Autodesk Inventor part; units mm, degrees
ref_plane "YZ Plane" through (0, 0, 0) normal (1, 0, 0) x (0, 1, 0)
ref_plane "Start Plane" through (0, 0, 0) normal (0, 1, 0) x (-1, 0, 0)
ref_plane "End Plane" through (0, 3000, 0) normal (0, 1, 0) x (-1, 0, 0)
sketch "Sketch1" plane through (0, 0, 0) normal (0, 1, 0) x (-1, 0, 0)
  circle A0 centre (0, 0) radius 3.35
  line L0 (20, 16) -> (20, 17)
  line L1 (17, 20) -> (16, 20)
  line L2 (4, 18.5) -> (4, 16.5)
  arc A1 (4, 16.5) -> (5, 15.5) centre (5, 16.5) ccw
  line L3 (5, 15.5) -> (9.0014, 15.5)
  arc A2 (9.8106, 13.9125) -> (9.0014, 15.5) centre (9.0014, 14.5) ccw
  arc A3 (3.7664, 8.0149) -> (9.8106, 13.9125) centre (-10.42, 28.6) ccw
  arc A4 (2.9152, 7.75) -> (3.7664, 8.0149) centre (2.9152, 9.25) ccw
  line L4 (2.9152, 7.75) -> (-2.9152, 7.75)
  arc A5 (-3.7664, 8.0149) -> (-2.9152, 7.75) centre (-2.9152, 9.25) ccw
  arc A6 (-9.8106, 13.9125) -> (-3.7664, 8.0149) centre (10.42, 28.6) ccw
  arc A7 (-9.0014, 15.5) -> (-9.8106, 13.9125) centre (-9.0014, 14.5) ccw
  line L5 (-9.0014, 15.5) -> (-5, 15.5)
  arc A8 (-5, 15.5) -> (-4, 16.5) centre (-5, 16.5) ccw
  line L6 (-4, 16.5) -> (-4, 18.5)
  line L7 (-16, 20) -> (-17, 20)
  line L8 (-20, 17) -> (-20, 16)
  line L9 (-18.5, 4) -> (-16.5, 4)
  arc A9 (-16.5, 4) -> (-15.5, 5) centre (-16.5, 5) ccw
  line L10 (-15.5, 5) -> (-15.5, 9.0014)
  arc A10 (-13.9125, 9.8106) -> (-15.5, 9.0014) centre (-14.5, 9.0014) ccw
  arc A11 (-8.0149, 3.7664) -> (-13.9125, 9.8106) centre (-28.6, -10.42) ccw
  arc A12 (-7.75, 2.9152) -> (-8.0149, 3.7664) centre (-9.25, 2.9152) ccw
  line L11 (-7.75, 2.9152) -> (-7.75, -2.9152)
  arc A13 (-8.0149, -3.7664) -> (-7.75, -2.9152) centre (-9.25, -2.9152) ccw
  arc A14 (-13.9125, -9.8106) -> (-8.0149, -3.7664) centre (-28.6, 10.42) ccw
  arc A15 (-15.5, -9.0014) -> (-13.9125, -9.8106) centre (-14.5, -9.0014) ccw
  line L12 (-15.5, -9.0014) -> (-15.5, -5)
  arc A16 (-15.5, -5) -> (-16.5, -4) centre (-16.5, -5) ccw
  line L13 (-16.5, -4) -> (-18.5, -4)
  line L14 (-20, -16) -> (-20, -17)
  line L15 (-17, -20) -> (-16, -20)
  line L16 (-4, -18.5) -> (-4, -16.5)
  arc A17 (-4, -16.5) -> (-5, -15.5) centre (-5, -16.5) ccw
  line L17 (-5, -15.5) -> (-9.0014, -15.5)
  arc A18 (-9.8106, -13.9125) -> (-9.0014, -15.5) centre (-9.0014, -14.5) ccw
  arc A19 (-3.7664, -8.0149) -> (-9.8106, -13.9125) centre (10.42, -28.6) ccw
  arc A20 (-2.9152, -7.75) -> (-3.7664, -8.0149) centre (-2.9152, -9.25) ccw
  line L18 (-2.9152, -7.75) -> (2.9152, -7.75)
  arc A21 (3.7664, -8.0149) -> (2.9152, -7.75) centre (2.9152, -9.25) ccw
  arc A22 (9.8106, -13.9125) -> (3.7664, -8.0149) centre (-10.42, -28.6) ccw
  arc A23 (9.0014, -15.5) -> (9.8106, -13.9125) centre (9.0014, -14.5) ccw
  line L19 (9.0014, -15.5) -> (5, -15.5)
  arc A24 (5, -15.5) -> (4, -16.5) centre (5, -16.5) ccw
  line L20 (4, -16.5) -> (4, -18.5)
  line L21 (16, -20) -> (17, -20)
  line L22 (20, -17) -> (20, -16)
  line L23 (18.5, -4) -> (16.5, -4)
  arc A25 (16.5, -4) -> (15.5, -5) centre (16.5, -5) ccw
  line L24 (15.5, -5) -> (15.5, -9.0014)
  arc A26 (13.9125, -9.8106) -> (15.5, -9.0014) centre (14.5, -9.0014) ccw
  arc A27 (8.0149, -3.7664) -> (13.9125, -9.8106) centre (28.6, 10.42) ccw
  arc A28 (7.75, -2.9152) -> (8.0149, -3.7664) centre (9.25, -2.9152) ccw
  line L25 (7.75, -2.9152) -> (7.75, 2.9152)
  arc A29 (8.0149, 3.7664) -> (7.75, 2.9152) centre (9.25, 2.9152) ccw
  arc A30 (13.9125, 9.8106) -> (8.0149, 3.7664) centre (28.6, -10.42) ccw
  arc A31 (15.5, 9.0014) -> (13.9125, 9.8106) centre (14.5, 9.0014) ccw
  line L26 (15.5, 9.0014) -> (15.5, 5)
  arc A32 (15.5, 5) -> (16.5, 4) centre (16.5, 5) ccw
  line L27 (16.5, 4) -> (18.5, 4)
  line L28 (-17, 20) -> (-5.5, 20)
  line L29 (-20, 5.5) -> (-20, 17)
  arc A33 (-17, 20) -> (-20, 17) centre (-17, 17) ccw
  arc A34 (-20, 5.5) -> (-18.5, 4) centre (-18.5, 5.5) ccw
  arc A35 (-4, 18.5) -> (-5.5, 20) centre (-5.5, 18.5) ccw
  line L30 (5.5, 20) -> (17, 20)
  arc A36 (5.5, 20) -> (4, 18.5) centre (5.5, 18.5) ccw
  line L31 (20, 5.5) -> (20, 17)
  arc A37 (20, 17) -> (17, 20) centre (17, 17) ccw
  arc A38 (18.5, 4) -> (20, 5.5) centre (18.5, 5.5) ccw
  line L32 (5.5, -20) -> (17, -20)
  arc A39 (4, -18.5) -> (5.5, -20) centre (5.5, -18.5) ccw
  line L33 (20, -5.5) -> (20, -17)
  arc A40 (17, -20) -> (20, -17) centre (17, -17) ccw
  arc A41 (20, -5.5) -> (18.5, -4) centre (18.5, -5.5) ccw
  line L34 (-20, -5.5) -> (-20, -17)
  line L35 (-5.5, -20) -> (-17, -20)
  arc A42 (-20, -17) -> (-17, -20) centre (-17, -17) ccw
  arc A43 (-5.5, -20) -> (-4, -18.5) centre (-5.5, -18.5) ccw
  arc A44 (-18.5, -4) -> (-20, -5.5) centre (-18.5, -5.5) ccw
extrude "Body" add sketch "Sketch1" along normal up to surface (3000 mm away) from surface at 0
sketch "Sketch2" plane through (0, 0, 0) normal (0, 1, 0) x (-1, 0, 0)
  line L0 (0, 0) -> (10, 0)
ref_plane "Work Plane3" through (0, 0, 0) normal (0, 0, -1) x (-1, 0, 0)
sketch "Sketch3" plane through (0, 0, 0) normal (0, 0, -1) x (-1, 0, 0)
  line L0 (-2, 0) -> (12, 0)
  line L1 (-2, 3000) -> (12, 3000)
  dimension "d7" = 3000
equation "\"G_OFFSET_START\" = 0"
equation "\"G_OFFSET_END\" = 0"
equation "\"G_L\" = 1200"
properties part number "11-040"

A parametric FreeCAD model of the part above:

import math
import FreeCAD as App
import Part
import Sketcher

V = App.Vector

doc = App.newDocument("Part")
params = doc.addObject("Spreadsheet::Sheet", "Params")
for row, (alias, value) in enumerate([
    ("sketch1_radius", "3 mm"),
    ("sketch1_radius2", "1 mm"),
    ("sketch1_radius3", "25 mm"),
    ("sketch1_diameter", "6.7 mm"),
    ("sketch1_radius4", "1.5 mm"),
    ("pad1_length", "3000 mm"),
], start=1):
    params.set(f"A{row}", alias)
    params.set(f"B{row}", "=" + value)
    params.setAlias(f"B{row}", alias)

body = doc.addObject("PartDesign::Body", "Body")

# Sketch on XZ plane
sketch1 = body.newObject("Sketcher::SketchObject", "Sketch")
sketch1.AttachmentSupport = (doc.getObject("XZ_Plane"), [""])
sketch1.MapMode = "FlatFace"
sketch1.addGeometry(Part.LineSegment(V(-20, 5.5, 0), V(-20, 17, 0)), False)
sketch1.addGeometry(Part.ArcOfCircle(Part.Circle(V(-17, 17, 0), V(0, 0, 1), 3), math.radians(90), math.radians(180)), False)
sketch1.addGeometry(Part.LineSegment(V(-17, 20, 0), V(-5.5, 20, 0)), False)
sketch1.addGeometry(Part.ArcOfCircle(Part.Circle(V(-5.5, 18.5, 0), V(0, 0, 1), 1.5), math.radians(0), math.radians(90)), False)
sketch1.addGeometry(Part.LineSegment(V(-4, 18.5, 0), V(-4, 16.5, 0)), False)
sketch1.addGeometry(Part.ArcOfCircle(Part.Circle(V(-5, 16.5, 0), V(0, 0, 1), 1), math.radians(-90), math.radians(0)), False)
sketch1.addGeometry(Part.LineSegment(V(-5, 15.5, 0), V(-9, 15.5, 0)), False)
sketch1.addGeometry(Part.ArcOfCircle(Part.Circle(V(-9, 14.5, 0), V(0, 0, 1), 1), math.radians(90), math.radians(216)), False)
sketch1.addGeometry(Part.ArcOfCircle(Part.Circle(V(10.4, 28.6, 0), V(0, 0, 1), 25), math.radians(-144.02), math.radians(-124.57)), False)
sketch1.addGeometry(Part.ArcOfCircle(Part.Circle(V(-2.9, 9.2, 0), V(0, 0, 1), 1.5), math.radians(-125), math.radians(-90)), False)
sketch1.addGeometry(Part.LineSegment(V(-2.9, 7.8, 0), V(2.9, 7.8, 0)), False)
sketch1.addGeometry(Part.ArcOfCircle(Part.Circle(V(2.9, 9.2, 0), V(0, 0, 1), 1.5), math.radians(-90), math.radians(-55)), False)
sketch1.addGeometry(Part.ArcOfCircle(Part.Circle(V(-10.4, 28.6, 0), V(0, 0, 1), 25), math.radians(-55.43), math.radians(-35.98)), False)
sketch1.addGeometry(Part.ArcOfCircle(Part.Circle(V(9, 14.5, 0), V(0, 0, 1), 1), math.radians(-36), math.radians(90)), False)
sketch1.addGeometry(Part.LineSegment(V(9, 15.5, 0), V(5, 15.5, 0)), False)
sketch1.addGeometry(Part.ArcOfCircle(Part.Circle(V(5, 16.5, 0), V(0, 0, 1), 1), math.radians(180), math.radians(270)), False)
sketch1.addGeometry(Part.LineSegment(V(4, 16.5, 0), V(4, 18.5, 0)), False)
sketch1.addGeometry(Part.ArcOfCircle(Part.Circle(V(5.5, 18.5, 0), V(0, 0, 1), 1.5), math.radians(90), math.radians(180)), False)
sketch1.addGeometry(Part.LineSegment(V(5.5, 20, 0), V(17, 20, 0)), False)
sketch1.addGeometry(Part.ArcOfCircle(Part.Circle(V(17, 17, 0), V(0, 0, 1), 3), math.radians(0), math.radians(90)), False)
sketch1.addGeometry(Part.LineSegment(V(20, 17, 0), V(20, 5.5, 0)), False)
sketch1.addGeometry(Part.ArcOfCircle(Part.Circle(V(18.5, 5.5, 0), V(0, 0, 1), 1.5), math.radians(-90), math.radians(0)), False)
sketch1.addGeometry(Part.LineSegment(V(18.5, 4, 0), V(16.5, 4, 0)), False)
sketch1.addGeometry(Part.ArcOfCircle(Part.Circle(V(16.5, 5, 0), V(0, 0, 1), 1), math.radians(180), math.radians(270)), False)
sketch1.addGeometry(Part.LineSegment(V(15.5, 5, 0), V(15.5, 9, 0)), False)
sketch1.addGeometry(Part.ArcOfCircle(Part.Circle(V(14.5, 9, 0), V(0, 0, 1), 1), math.radians(0), math.radians(126)), False)
sketch1.addGeometry(Part.ArcOfCircle(Part.Circle(V(28.6, -10.4, 0), V(0, 0, 1), 25), math.radians(125.98), math.radians(145.43)), False)
sketch1.addGeometry(Part.ArcOfCircle(Part.Circle(V(9.2, 2.9, 0), V(0, 0, 1), 1.5), math.radians(145), math.radians(180)), False)
sketch1.addGeometry(Part.LineSegment(V(7.8, 2.9, 0), V(7.8, -2.9, 0)), False)
sketch1.addGeometry(Part.ArcOfCircle(Part.Circle(V(9.2, -2.9, 0), V(0, 0, 1), 1.5), math.radians(180), math.radians(215)), False)
sketch1.addGeometry(Part.ArcOfCircle(Part.Circle(V(28.6, 10.4, 0), V(0, 0, 1), 25), math.radians(-145.43), math.radians(-125.98)), False)
sketch1.addGeometry(Part.ArcOfCircle(Part.Circle(V(14.5, -9, 0), V(0, 0, 1), 1), math.radians(-126), math.radians(0)), False)
sketch1.addGeometry(Part.LineSegment(V(15.5, -9, 0), V(15.5, -5, 0)), False)
sketch1.addGeometry(Part.ArcOfCircle(Part.Circle(V(16.5, -5, 0), V(0, 0, 1), 1), math.radians(90), math.radians(180)), False)
sketch1.addGeometry(Part.LineSegment(V(16.5, -4, 0), V(18.5, -4, 0)), False)
sketch1.addGeometry(Part.ArcOfCircle(Part.Circle(V(18.5, -5.5, 0), V(0, 0, 1), 1.5), math.radians(0), math.radians(90)), False)
sketch1.addGeometry(Part.LineSegment(V(20, -5.5, 0), V(20, -17, 0)), False)
sketch1.addGeometry(Part.ArcOfCircle(Part.Circle(V(17, -17, 0), V(0, 0, 1), 3), math.radians(-90), math.radians(0)), False)
sketch1.addGeometry(Part.LineSegment(V(17, -20, 0), V(5.5, -20, 0)), False)
sketch1.addGeometry(Part.ArcOfCircle(Part.Circle(V(5.5, -18.5, 0), V(0, 0, 1), 1.5), math.radians(180), math.radians(270)), False)
sketch1.addGeometry(Part.LineSegment(V(4, -18.5, 0), V(4, -16.5, 0)), False)
sketch1.addGeometry(Part.ArcOfCircle(Part.Circle(V(5, -16.5, 0), V(0, 0, 1), 1), math.radians(90), math.radians(180)), False)
sketch1.addGeometry(Part.LineSegment(V(5, -15.5, 0), V(9, -15.5, 0)), False)
sketch1.addGeometry(Part.ArcOfCircle(Part.Circle(V(9, -14.5, 0), V(0, 0, 1), 1), math.radians(-90), math.radians(36)), False)
sketch1.addGeometry(Part.ArcOfCircle(Part.Circle(V(-10.4, -28.6, 0), V(0, 0, 1), 25), math.radians(35.98), math.radians(55.43)), False)
sketch1.addGeometry(Part.ArcOfCircle(Part.Circle(V(2.9, -9.2, 0), V(0, 0, 1), 1.5), math.radians(55), math.radians(90)), False)
sketch1.addGeometry(Part.LineSegment(V(2.9, -7.8, 0), V(-2.9, -7.8, 0)), False)
sketch1.addGeometry(Part.ArcOfCircle(Part.Circle(V(-2.9, -9.2, 0), V(0, 0, 1), 1.5), math.radians(90), math.radians(125)), False)
sketch1.addGeometry(Part.ArcOfCircle(Part.Circle(V(10.4, -28.6, 0), V(0, 0, 1), 25), math.radians(124.57), math.radians(144.02)), False)
sketch1.addGeometry(Part.ArcOfCircle(Part.Circle(V(-9, -14.5, 0), V(0, 0, 1), 1), math.radians(144), math.radians(270)), False)
sketch1.addGeometry(Part.LineSegment(V(-9, -15.5, 0), V(-5, -15.5, 0)), False)
sketch1.addGeometry(Part.ArcOfCircle(Part.Circle(V(-5, -16.5, 0), V(0, 0, 1), 1), math.radians(0), math.radians(90)), False)
sketch1.addGeometry(Part.LineSegment(V(-4, -16.5, 0), V(-4, -18.5, 0)), False)
sketch1.addGeometry(Part.ArcOfCircle(Part.Circle(V(-5.5, -18.5, 0), V(0, 0, 1), 1.5), math.radians(-90), math.radians(0)), False)
sketch1.addGeometry(Part.LineSegment(V(-5.5, -20, 0), V(-17, -20, 0)), False)
sketch1.addGeometry(Part.ArcOfCircle(Part.Circle(V(-17, -17, 0), V(0, 0, 1), 3), math.radians(180), math.radians(270)), False)
sketch1.addGeometry(Part.LineSegment(V(-20, -17, 0), V(-20, -5.5, 0)), False)
sketch1.addGeometry(Part.ArcOfCircle(Part.Circle(V(-18.5, -5.5, 0), V(0, 0, 1), 1.5), math.radians(90), math.radians(180)), False)
sketch1.addGeometry(Part.LineSegment(V(-18.5, -4, 0), V(-16.5, -4, 0)), False)
sketch1.addGeometry(Part.ArcOfCircle(Part.Circle(V(-16.5, -5, 0), V(0, 0, 1), 1), math.radians(0), math.radians(90)), False)
sketch1.addGeometry(Part.LineSegment(V(-15.5, -5, 0), V(-15.5, -9, 0)), False)
sketch1.addGeometry(Part.ArcOfCircle(Part.Circle(V(-14.5, -9, 0), V(0, 0, 1), 1), math.radians(180), math.radians(306)), False)
sketch1.addGeometry(Part.ArcOfCircle(Part.Circle(V(-28.6, 10.4, 0), V(0, 0, 1), 25), math.radians(-54.02), math.radians(-34.57)), False)
sketch1.addGeometry(Part.ArcOfCircle(Part.Circle(V(-9.2, -2.9, 0), V(0, 0, 1), 1.5), math.radians(-35), math.radians(0)), False)
sketch1.addGeometry(Part.LineSegment(V(-7.8, -2.9, 0), V(-7.8, 2.9, 0)), False)
sketch1.addGeometry(Part.ArcOfCircle(Part.Circle(V(-9.2, 2.9, 0), V(0, 0, 1), 1.5), math.radians(0), math.radians(35)), False)
sketch1.addGeometry(Part.ArcOfCircle(Part.Circle(V(-28.6, -10.4, 0), V(0, 0, 1), 25), math.radians(34.57), math.radians(54.02)), False)
sketch1.addGeometry(Part.ArcOfCircle(Part.Circle(V(-14.5, 9, 0), V(0, 0, 1), 1), math.radians(54), math.radians(180)), False)
sketch1.addGeometry(Part.LineSegment(V(-15.5, 9, 0), V(-15.5, 5, 0)), False)
sketch1.addGeometry(Part.ArcOfCircle(Part.Circle(V(-16.5, 5, 0), V(0, 0, 1), 1), math.radians(-90), math.radians(0)), False)
sketch1.addGeometry(Part.LineSegment(V(-16.5, 4, 0), V(-18.5, 4, 0)), False)
sketch1.addGeometry(Part.ArcOfCircle(Part.Circle(V(-18.5, 5.5, 0), V(0, 0, 1), 1.5), math.radians(180), math.radians(270)), False)
sketch1.addGeometry(Part.Circle(V(0, 0, 0), V(0, 0, 1), 3.4), False)
sketch1.addConstraint(Sketcher.Constraint("Tangent", 0, 2, 1, 2))
sketch1.addConstraint(Sketcher.Constraint("Tangent", 1, 1, 2, 1))
sketch1.addConstraint(Sketcher.Constraint("Tangent", 2, 2, 3, 2))
sketch1.addConstraint(Sketcher.Constraint("Tangent", 3, 1, 4, 1))
sketch1.addConstraint(Sketcher.Constraint("Tangent", 4, 2, 5, 2))
sketch1.addConstraint(Sketcher.Constraint("Tangent", 5, 1, 6, 1))
sketch1.addConstraint(Sketcher.Constraint("Tangent", 6, 2, 7, 1))
sketch1.addConstraint(Sketcher.Constraint("Tangent", 7, 2, 8, 1))
sketch1.addConstraint(Sketcher.Constraint("Tangent", 8, 2, 9, 1))
sketch1.addConstraint(Sketcher.Constraint("Tangent", 9, 2, 10, 1))
sketch1.addConstraint(Sketcher.Constraint("Tangent", 10, 2, 11, 1))
sketch1.addConstraint(Sketcher.Constraint("Tangent", 11, 2, 12, 1))
sketch1.addConstraint(Sketcher.Constraint("Tangent", 12, 2, 13, 1))
sketch1.addConstraint(Sketcher.Constraint("Tangent", 13, 2, 14, 1))
sketch1.addConstraint(Sketcher.Constraint("Tangent", 14, 2, 15, 2))
sketch1.addConstraint(Sketcher.Constraint("Tangent", 15, 1, 16, 1))
sketch1.addConstraint(Sketcher.Constraint("Tangent", 16, 2, 17, 2))
sketch1.addConstraint(Sketcher.Constraint("Tangent", 17, 1, 18, 1))
sketch1.addConstraint(Sketcher.Constraint("Tangent", 18, 2, 19, 2))
sketch1.addConstraint(Sketcher.Constraint("Tangent", 19, 1, 20, 1))
sketch1.addConstraint(Sketcher.Constraint("Tangent", 20, 2, 21, 2))
sketch1.addConstraint(Sketcher.Constraint("Tangent", 21, 1, 22, 1))
sketch1.addConstraint(Sketcher.Constraint("Tangent", 22, 2, 23, 2))
sketch1.addConstraint(Sketcher.Constraint("Tangent", 23, 1, 24, 1))
sketch1.addConstraint(Sketcher.Constraint("Tangent", 24, 2, 25, 1))
sketch1.addConstraint(Sketcher.Constraint("Tangent", 25, 2, 26, 1))
sketch1.addConstraint(Sketcher.Constraint("Tangent", 26, 2, 27, 1))
sketch1.addConstraint(Sketcher.Constraint("Tangent", 27, 2, 28, 1))
sketch1.addConstraint(Sketcher.Constraint("Tangent", 28, 2, 29, 1))
sketch1.addConstraint(Sketcher.Constraint("Tangent", 29, 2, 30, 1))
sketch1.addConstraint(Sketcher.Constraint("Tangent", 30, 2, 31, 1))
sketch1.addConstraint(Sketcher.Constraint("Tangent", 31, 2, 32, 1))
sketch1.addConstraint(Sketcher.Constraint("Tangent", 32, 2, 33, 2))
sketch1.addConstraint(Sketcher.Constraint("Tangent", 33, 1, 34, 1))
sketch1.addConstraint(Sketcher.Constraint("Tangent", 34, 2, 35, 2))
sketch1.addConstraint(Sketcher.Constraint("Tangent", 35, 1, 36, 1))
sketch1.addConstraint(Sketcher.Constraint("Tangent", 36, 2, 37, 2))
sketch1.addConstraint(Sketcher.Constraint("Tangent", 37, 1, 38, 1))
sketch1.addConstraint(Sketcher.Constraint("Tangent", 38, 2, 39, 2))
sketch1.addConstraint(Sketcher.Constraint("Tangent", 39, 1, 40, 1))
sketch1.addConstraint(Sketcher.Constraint("Tangent", 40, 2, 41, 2))
sketch1.addConstraint(Sketcher.Constraint("Tangent", 41, 1, 42, 1))
sketch1.addConstraint(Sketcher.Constraint("Tangent", 42, 2, 43, 1))
sketch1.addConstraint(Sketcher.Constraint("Tangent", 43, 2, 44, 1))
sketch1.addConstraint(Sketcher.Constraint("Tangent", 44, 2, 45, 1))
sketch1.addConstraint(Sketcher.Constraint("Tangent", 45, 2, 46, 1))
sketch1.addConstraint(Sketcher.Constraint("Tangent", 46, 2, 47, 1))
sketch1.addConstraint(Sketcher.Constraint("Tangent", 47, 2, 48, 1))
sketch1.addConstraint(Sketcher.Constraint("Tangent", 48, 2, 49, 1))
sketch1.addConstraint(Sketcher.Constraint("Tangent", 49, 2, 50, 1))
sketch1.addConstraint(Sketcher.Constraint("Tangent", 50, 2, 51, 2))
sketch1.addConstraint(Sketcher.Constraint("Tangent", 51, 1, 52, 1))
sketch1.addConstraint(Sketcher.Constraint("Tangent", 52, 2, 53, 2))
sketch1.addConstraint(Sketcher.Constraint("Tangent", 53, 1, 54, 1))
sketch1.addConstraint(Sketcher.Constraint("Tangent", 54, 2, 55, 2))
sketch1.addConstraint(Sketcher.Constraint("Tangent", 55, 1, 56, 1))
sketch1.addConstraint(Sketcher.Constraint("Tangent", 56, 2, 57, 2))
sketch1.addConstraint(Sketcher.Constraint("Tangent", 57, 1, 58, 1))
sketch1.addConstraint(Sketcher.Constraint("Tangent", 58, 2, 59, 2))
sketch1.addConstraint(Sketcher.Constraint("Tangent", 59, 1, 60, 1))
sketch1.addConstraint(Sketcher.Constraint("Tangent", 60, 2, 61, 1))
sketch1.addConstraint(Sketcher.Constraint("Tangent", 61, 2, 62, 1))
sketch1.addConstraint(Sketcher.Constraint("Tangent", 62, 2, 63, 1))
sketch1.addConstraint(Sketcher.Constraint("Tangent", 63, 2, 64, 1))
sketch1.addConstraint(Sketcher.Constraint("Tangent", 64, 2, 65, 1))
sketch1.addConstraint(Sketcher.Constraint("Tangent", 65, 2, 66, 1))
sketch1.addConstraint(Sketcher.Constraint("Tangent", 66, 2, 67, 1))
sketch1.addConstraint(Sketcher.Constraint("Tangent", 67, 2, 68, 1))
sketch1.addConstraint(Sketcher.Constraint("Tangent", 68, 2, 69, 2))
sketch1.addConstraint(Sketcher.Constraint("Tangent", 69, 1, 70, 1))
sketch1.addConstraint(Sketcher.Constraint("Tangent", 70, 2, 71, 2))
sketch1.addConstraint(Sketcher.Constraint("Tangent", 71, 1, 0, 1))
sketch1.addConstraint(Sketcher.Constraint("Vertical", 0))
sketch1.addConstraint(Sketcher.Constraint("Horizontal", 2))
sketch1.addConstraint(Sketcher.Constraint("Vertical", 4))
sketch1.addConstraint(Sketcher.Constraint("Horizontal", 6))
sketch1.addConstraint(Sketcher.Constraint("Horizontal", 10))
sketch1.addConstraint(Sketcher.Constraint("Horizontal", 14))
sketch1.addConstraint(Sketcher.Constraint("Vertical", 16))
sketch1.addConstraint(Sketcher.Constraint("Horizontal", 18))
sketch1.addConstraint(Sketcher.Constraint("Vertical", 20))
sketch1.addConstraint(Sketcher.Constraint("Horizontal", 22))
sketch1.addConstraint(Sketcher.Constraint("Vertical", 24))
sketch1.addConstraint(Sketcher.Constraint("Vertical", 28))
sketch1.addConstraint(Sketcher.Constraint("Vertical", 32))
sketch1.addConstraint(Sketcher.Constraint("Horizontal", 34))
sketch1.addConstraint(Sketcher.Constraint("Vertical", 36))
sketch1.addConstraint(Sketcher.Constraint("Horizontal", 38))
sketch1.addConstraint(Sketcher.Constraint("Vertical", 40))
sketch1.addConstraint(Sketcher.Constraint("Horizontal", 42))
sketch1.addConstraint(Sketcher.Constraint("Horizontal", 46))
sketch1.addConstraint(Sketcher.Constraint("Horizontal", 50))
sketch1.addConstraint(Sketcher.Constraint("Vertical", 52))
sketch1.addConstraint(Sketcher.Constraint("Horizontal", 54))
sketch1.addConstraint(Sketcher.Constraint("Vertical", 56))
sketch1.addConstraint(Sketcher.Constraint("Horizontal", 58))
sketch1.addConstraint(Sketcher.Constraint("Vertical", 60))
sketch1.addConstraint(Sketcher.Constraint("Vertical", 64))
sketch1.addConstraint(Sketcher.Constraint("Vertical", 68))
sketch1.addConstraint(Sketcher.Constraint("Horizontal", 70))
sketch1.addConstraint(Sketcher.Constraint("Coincident", 72, 3, -1, 1))
sketch1.addConstraint(Sketcher.Constraint("Equal", 5, 7))
sketch1.addConstraint(Sketcher.Constraint("Equal", 3, 9))
sketch1.addConstraint(Sketcher.Constraint("Equal", 9, 11))
sketch1.addConstraint(Sketcher.Constraint("Equal", 8, 12))
sketch1.addConstraint(Sketcher.Constraint("Equal", 7, 13))
sketch1.addConstraint(Sketcher.Constraint("Equal", 13, 15))
sketch1.addConstraint(Sketcher.Constraint("Equal", 11, 17))
sketch1.addConstraint(Sketcher.Constraint("Equal", 1, 19))
sketch1.addConstraint(Sketcher.Constraint("Equal", 17, 21))
sketch1.addConstraint(Sketcher.Constraint("Equal", 15, 23))
sketch1.addConstraint(Sketcher.Constraint("Equal", 23, 25))
sketch1.addConstraint(Sketcher.Constraint("Equal", 12, 26))
sketch1.addConstraint(Sketcher.Constraint("Equal", 21, 27))
sketch1.addConstraint(Sketcher.Constraint("Equal", 27, 29))
sketch1.addConstraint(Sketcher.Constraint("Equal", 26, 30))
sketch1.addConstraint(Sketcher.Constraint("Equal", 25, 31))
sketch1.addConstraint(Sketcher.Constraint("Equal", 31, 33))
sketch1.addConstraint(Sketcher.Constraint("Equal", 29, 35))
sketch1.addConstraint(Sketcher.Constraint("Equal", 19, 37))
sketch1.addConstraint(Sketcher.Constraint("Equal", 35, 39))
sketch1.addConstraint(Sketcher.Constraint("Equal", 33, 41))
sketch1.addConstraint(Sketcher.Constraint("Equal", 41, 43))
sketch1.addConstraint(Sketcher.Constraint("Equal", 30, 44))
sketch1.addConstraint(Sketcher.Constraint("Equal", 39, 45))
sketch1.addConstraint(Sketcher.Constraint("Equal", 45, 47))
sketch1.addConstraint(Sketcher.Constraint("Equal", 44, 48))
sketch1.addConstraint(Sketcher.Constraint("Equal", 43, 49))
sketch1.addConstraint(Sketcher.Constraint("Equal", 49, 51))
sketch1.addConstraint(Sketcher.Constraint("Equal", 47, 53))
sketch1.addConstraint(Sketcher.Constraint("Equal", 37, 55))
sketch1.addConstraint(Sketcher.Constraint("Equal", 53, 57))
sketch1.addConstraint(Sketcher.Constraint("Equal", 51, 59))
sketch1.addConstraint(Sketcher.Constraint("Equal", 59, 61))
sketch1.addConstraint(Sketcher.Constraint("Equal", 48, 62))
sketch1.addConstraint(Sketcher.Constraint("Equal", 57, 63))
sketch1.addConstraint(Sketcher.Constraint("Equal", 63, 65))
sketch1.addConstraint(Sketcher.Constraint("Equal", 62, 66))
sketch1.addConstraint(Sketcher.Constraint("Equal", 61, 67))
sketch1.addConstraint(Sketcher.Constraint("Equal", 67, 69))
sketch1.addConstraint(Sketcher.Constraint("Equal", 65, 71))
sketch1.addConstraint(Sketcher.Constraint("Symmetric", 1, 3, 37, 3, -1, 1))
sketch1.addConstraint(Sketcher.Constraint("Symmetric", 5, 3, 41, 3, -1, 1))
sketch1.addConstraint(Sketcher.Constraint("Symmetric", 8, 3, 44, 3, -1, 1))
sketch1.addConstraint(Sketcher.Constraint("Symmetric", 11, 3, 47, 3, -1, 1))
sketch1.addConstraint(Sketcher.Constraint("Symmetric", 13, 3, 49, 3, -1, 1))
sketch1.addConstraint(Sketcher.Constraint("Symmetric", 17, 3, 53, 3, -1, 1))
sketch1.addConstraint(Sketcher.Constraint("Symmetric", 21, 3, 57, 3, -1, 1))
sketch1.addConstraint(Sketcher.Constraint("Symmetric", 25, 3, 61, 3, -1, 1))
sketch1.addConstraint(Sketcher.Constraint("Symmetric", 27, 3, 63, 3, -1, 1))
sketch1.addConstraint(Sketcher.Constraint("Symmetric", 30, 3, 66, 3, -1, 1))
sketch1.addConstraint(Sketcher.Constraint("Symmetric", 33, 3, 69, 3, -1, 1))
sketch1.addConstraint(Sketcher.Constraint("Symmetric", 8, 3, 12, 3, -2))
sketch1.addConstraint(Sketcher.Constraint("Symmetric", 5, 3, 15, 3, -2))
sketch1.addConstraint(Sketcher.Constraint("Symmetric", 1, 3, 19, 3, -2))
sketch1.addConstraint(Sketcher.Constraint("Symmetric", 33, 3, 59, 3, -2))
sketch1.addConstraint(Sketcher.Constraint("Symmetric", 30, 3, 62, 3, -2))
sketch1.addConstraint(Sketcher.Constraint("Equal", 54, 0))
sketch1.addConstraint(Sketcher.Constraint("Equal", 70, 4))
sketch1.addConstraint(Sketcher.Constraint("Equal", 50, 24))
sketch1.addConstraint(Sketcher.Constraint("Equal", 46, 28))
sketch1.addConstraint(Sketcher.Constraint("Radius", 1, 3.0))
sketch1.addConstraint(Sketcher.Constraint("Radius", 5, 1.0))
sketch1.addConstraint(Sketcher.Constraint("Radius", 8, 25.0))
sketch1.addConstraint(Sketcher.Constraint("Diameter", 72, 6.7))
sketch1.addConstraint(Sketcher.Constraint("Radius", 3, 1.5))
sketch1.addConstraint(Sketcher.Constraint("DistanceX", 22, 2, 22, 1, 2.0))
sketch1.addConstraint(Sketcher.Constraint("DistanceX", 2, 1, 2, 2, 11.5))
sketch1.addConstraint(Sketcher.Constraint("DistanceX", 1, 3, -1, 1, 17.0))
sketch1.addConstraint(Sketcher.Constraint("DistanceY", -1, 1, 1, 3, 17.0))
sketch1.addConstraint(Sketcher.Constraint("DistanceY", -1, 1, 8, 3, 28.6))
sketch1.addConstraint(Sketcher.Constraint("DistanceX", -1, 1, 26, 3, 28.6))
sketch1.addConstraint(Sketcher.Constraint("DistanceX", -1, 1, 8, 3, 10.42))
sketch1.addConstraint(Sketcher.Constraint("DistanceY", -1, 1, 9, 3, 9.25))
sketch1.setExpression("Constraints[161]", "Params.sketch1_radius")
sketch1.setExpression("Constraints[162]", "Params.sketch1_radius2")
sketch1.setExpression("Constraints[163]", "Params.sketch1_radius3")
sketch1.setExpression("Constraints[164]", "Params.sketch1_diameter")
sketch1.setExpression("Constraints[165]", "Params.sketch1_radius4")
pad1 = body.newObject("PartDesign::Pad", "Pad")
pad1.Profile = sketch1
pad1.setExpression("Length", "Params.pad1_length")
pad1.Reversed = True

doc.recompute()
